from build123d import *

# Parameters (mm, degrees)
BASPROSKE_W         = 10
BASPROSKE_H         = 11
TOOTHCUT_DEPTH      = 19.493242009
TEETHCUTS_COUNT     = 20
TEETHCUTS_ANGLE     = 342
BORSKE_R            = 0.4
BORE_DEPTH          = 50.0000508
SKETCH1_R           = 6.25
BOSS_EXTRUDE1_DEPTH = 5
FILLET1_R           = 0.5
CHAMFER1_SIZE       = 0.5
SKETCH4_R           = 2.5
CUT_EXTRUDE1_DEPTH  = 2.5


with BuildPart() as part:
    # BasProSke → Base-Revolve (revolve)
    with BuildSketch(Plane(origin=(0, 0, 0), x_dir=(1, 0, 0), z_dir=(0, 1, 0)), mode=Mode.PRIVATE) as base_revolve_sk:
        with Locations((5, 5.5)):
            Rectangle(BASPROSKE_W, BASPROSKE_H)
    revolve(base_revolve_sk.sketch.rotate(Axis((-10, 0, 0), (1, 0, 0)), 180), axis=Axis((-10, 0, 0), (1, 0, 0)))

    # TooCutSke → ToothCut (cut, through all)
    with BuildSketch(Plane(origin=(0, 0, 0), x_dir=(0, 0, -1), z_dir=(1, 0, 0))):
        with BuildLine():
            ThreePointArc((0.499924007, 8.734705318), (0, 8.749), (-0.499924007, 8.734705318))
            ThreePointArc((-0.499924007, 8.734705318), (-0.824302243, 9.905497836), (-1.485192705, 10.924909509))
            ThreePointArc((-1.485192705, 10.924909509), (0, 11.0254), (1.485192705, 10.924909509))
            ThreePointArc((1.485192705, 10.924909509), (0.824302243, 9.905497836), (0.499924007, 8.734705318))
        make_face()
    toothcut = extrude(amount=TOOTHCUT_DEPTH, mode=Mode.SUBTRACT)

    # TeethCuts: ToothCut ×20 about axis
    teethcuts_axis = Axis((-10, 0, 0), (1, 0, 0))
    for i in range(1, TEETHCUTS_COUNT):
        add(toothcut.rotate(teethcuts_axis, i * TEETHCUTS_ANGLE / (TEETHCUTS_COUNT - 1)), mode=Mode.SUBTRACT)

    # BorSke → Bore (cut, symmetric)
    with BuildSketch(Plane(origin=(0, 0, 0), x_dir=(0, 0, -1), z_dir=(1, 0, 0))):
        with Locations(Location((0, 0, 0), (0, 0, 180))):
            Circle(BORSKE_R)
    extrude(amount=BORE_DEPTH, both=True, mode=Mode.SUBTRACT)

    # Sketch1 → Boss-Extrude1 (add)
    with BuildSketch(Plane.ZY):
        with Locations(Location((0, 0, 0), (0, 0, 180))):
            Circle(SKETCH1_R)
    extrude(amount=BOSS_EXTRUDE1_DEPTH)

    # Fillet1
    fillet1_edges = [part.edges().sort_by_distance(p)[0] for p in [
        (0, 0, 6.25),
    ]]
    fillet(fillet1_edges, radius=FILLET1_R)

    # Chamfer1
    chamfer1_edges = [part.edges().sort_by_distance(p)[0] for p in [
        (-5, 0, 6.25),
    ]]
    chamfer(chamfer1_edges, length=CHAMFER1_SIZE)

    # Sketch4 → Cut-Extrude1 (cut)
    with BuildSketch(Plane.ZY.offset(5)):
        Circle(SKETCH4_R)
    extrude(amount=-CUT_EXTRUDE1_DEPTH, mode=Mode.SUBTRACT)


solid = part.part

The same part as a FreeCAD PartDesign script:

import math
import FreeCAD as App
import Part
import Sketcher
from FreeCAD import Vector
Q = App.Units.Quantity


def edges_at(feature, points):
    """Names of the edges that pass closest to the given points."""
    edges = feature.Shape.Edges
    near = lambda p: min(range(len(edges)), key=lambda i: edges[i].distToShape(Part.Vertex(*p))[0])
    return sorted({f"Edge{near(p) + 1}" for p in points})

doc = App.newDocument("Part")
params = doc.addObject("Spreadsheet::Sheet", "Params")
for row, (alias, value) in enumerate([
    ("sketch1_width", "10 mm"),
    ("sketch1_height", "11 mm"),
    ("revolution_angle", "360 deg"),
    ("sketch2_radius", "4 mm"),
    ("sketch3_diameter", "0.8 mm"),
    ("pocket2_length", "100.000102 mm"),
    ("sketch4_diameter", "12.5 mm"),
    ("pad1_length", "5 mm"),
    ("fillet_radius", "0.5 mm"),
    ("chamfer_size", "0.5 mm"),
    ("sketch5_diameter", "5 mm"),
    ("pocket3_length", "2.5 mm"),
], start=1):
    params.set(f"A{row}", alias)
    params.set(f"B{row}", "=" + value)
    params.setAlias(f"B{row}", alias)

body = doc.addObject("PartDesign::Body", "Body")

sketch1 = body.newObject("Sketcher::SketchObject", "Sketch")
sketch1.AttachmentSupport = (doc.getObject("XZ_Plane"), [""])
sketch1.MapMode = "FlatFace"
sketch1.addGeometry([
    Part.LineSegment(Vector(0, -11, 0), Vector(0, 0, 0)),
    Part.LineSegment(Vector(0, 0, 0), Vector(10, 0, 0)),
    Part.LineSegment(Vector(10, 0, 0), Vector(10, -11, 0)),
    Part.LineSegment(Vector(10, -11, 0), Vector(0, -11, 0)),
], False)
sketch1.addConstraint([
    Sketcher.Constraint("Coincident", 0, 2, 1, 1),
    Sketcher.Constraint("Coincident", 1, 2, 2, 1),
    Sketcher.Constraint("Coincident", 2, 2, 3, 1),
    Sketcher.Constraint("Coincident", 3, 2, 0, 1),
    Sketcher.Constraint("Vertical", 0),
    Sketcher.Constraint("Horizontal", 1),
    Sketcher.Constraint("Vertical", 2),
    Sketcher.Constraint("Horizontal", 3),
    Sketcher.Constraint("Coincident", 0, 2, -1, 1),
    Sketcher.Constraint("DistanceX", 1, 1, 1, 2, Q("10 mm")),
    Sketcher.Constraint("DistanceY", 0, 1, 0, 2, Q("11 mm")),
])
sketch1.setExpression("Constraints[9]", "Params.sketch1_width")
sketch1.setExpression("Constraints[10]", "Params.sketch1_height")
revolution = body.newObject("PartDesign::Revolution", "Revolution")
revolution.Profile = sketch1
revolution.ReferenceAxis = (sketch1, ["H_Axis"])
revolution.setExpression("Angle", "Params.revolution_angle")

sketch2 = body.newObject("Sketcher::SketchObject", "Sketch001")
sketch2.AttachmentSupport = (doc.getObject("YZ_Plane"), [""])
sketch2.MapMode = "FlatFace"
sketch2.addGeometry([
    Part.ArcOfCircle(Part.Circle(Vector(0, 0, 0), Vector(0, 0, 1), 8.7), math.radians(-3.28), math.radians(3.28)),
    Part.ArcOfCircle(Part.Circle(Vector(8.3, -4.5, 0), Vector(0, 0, 1), 4), math.radians(48), math.radians(83)),
    Part.ArcOfCircle(Part.Circle(Vector(0, 0, 0), Vector(0, 0, 1), 11), math.radians(-7.74), math.radians(7.74)),
    Part.ArcOfCircle(Part.Circle(Vector(8.3, 4.5, 0), Vector(0, 0, 1), 4), math.radians(-83), math.radians(-48)),
], False)
sketch2.addConstraint([
    Sketcher.Constraint("Coincident", 0, 1, 1, 2),
    Sketcher.Constraint("Coincident", 1, 1, 2, 1),
    Sketcher.Constraint("Coincident", 2, 2, 3, 2),
    Sketcher.Constraint("Coincident", 3, 1, 0, 2),
    Sketcher.Constraint("Coincident", 0, 3, -1, 1),
    Sketcher.Constraint("Coincident", 2, 3, -1, 1),
    Sketcher.Constraint("Equal", 1, 3),
    Sketcher.Constraint("Symmetric", 1, 3, 3, 3, -1),
    Sketcher.Constraint("Radius", 1, Q("4 mm")),
    Sketcher.Constraint("Radius", 0, Q("8.749 mm")),
    Sketcher.Constraint("Radius", 2, Q("11.0254 mm")),
    Sketcher.Constraint("DistanceY", 1, 3, -1, 1, Q("4.47219 mm")),
    Sketcher.Constraint("DistanceX", -1, 1, 1, 1, Q("10.92491 mm")),
])
sketch2.setExpression("Constraints[8]", "Params.sketch2_radius")
pocket1 = body.newObject("PartDesign::Pocket", "Pocket")
pocket1.Profile = sketch2
pocket1.Type = "ThroughAll"
pocket1.Reversed = True
doc.recompute()

polarpattern = body.newObject("PartDesign::PolarPattern", "PolarPattern")
polarpattern.Originals = [pocket1]
polarpattern.Axis = (doc.getObject("X_Axis"), [""])
polarpattern.Angle = 360
polarpattern.Occurrences = 20
body.Tip = polarpattern

sketch3 = body.newObject("Sketcher::SketchObject", "Sketch002")
sketch3.AttachmentSupport = (doc.getObject("YZ_Plane"), [""])
sketch3.MapMode = "FlatFace"
sketch3.addGeometry(Part.Circle(Vector(0, 0, 0), Vector(0, 0, 1), 0.4), False)
sketch3.addConstraint([
    Sketcher.Constraint("Coincident", 0, 3, -1, 1),
    Sketcher.Constraint("Diameter", 0, Q("0.8 mm")),
])
sketch3.setExpression("Constraints[1]", "Params.sketch3_diameter")
pocket2 = body.newObject("PartDesign::Pocket", "Pocket001")
pocket2.Profile = sketch3
pocket2.setExpression("Length", "Params.pocket2_length")
pocket2.Midplane = True

sketch4 = body.newObject("Sketcher::SketchObject", "Sketch003")
sketch4.AttachmentSupport = (doc.getObject("YZ_Plane"), [""])
sketch4.MapMode = "FlatFace"
sketch4.addGeometry(Part.Circle(Vector(0, 0, 0), Vector(0, 0, 1), 6), False)
sketch4.addConstraint([
    Sketcher.Constraint("Coincident", 0, 3, -1, 1),
    Sketcher.Constraint("Diameter", 0, Q("12.5 mm")),
])
sketch4.setExpression("Constraints[1]", "Params.sketch4_diameter")
pad1 = body.newObject("PartDesign::Pad", "Pad")
pad1.Profile = sketch4
pad1.setExpression("Length", "Params.pad1_length")
pad1.Reversed = True
doc.recompute()

fillet = body.newObject("PartDesign::Fillet", "Fillet")
fillet.Base = (pad1, edges_at(pad1, [(0, 0, 6.25)]))
fillet.setExpression("Radius", "Params.fillet_radius")
doc.recompute()

chamfer = body.newObject("PartDesign::Chamfer", "Chamfer")
chamfer.Base = (fillet, edges_at(fillet, [(-5, 0, 6.25)]))
chamfer.setExpression("Size", "Params.chamfer_size")

sketch5 = body.newObject("Sketcher::SketchObject", "Sketch004")
sketch5.AttachmentSupport = (doc.getObject("YZ_Plane"), [""])
sketch5.MapMode = "FlatFace"
sketch5.AttachmentOffset = App.Placement(Vector(0, 0, -5), App.Rotation())
sketch5.addGeometry(Part.Circle(Vector(0, 0, 0), Vector(0, 0, 1), 2.5), False)
sketch5.addConstraint([
    Sketcher.Constraint("Coincident", 0, 3, -1, 1),
    Sketcher.Constraint("Diameter", 0, Q("5 mm")),
])
sketch5.setExpression("Constraints[1]", "Params.sketch5_diameter")
pocket3 = body.newObject("PartDesign::Pocket", "Pocket002")
pocket3.Profile = sketch5
pocket3.setExpression("Length", "Params.pocket3_length")
pocket3.Reversed = True

doc.recompute()
